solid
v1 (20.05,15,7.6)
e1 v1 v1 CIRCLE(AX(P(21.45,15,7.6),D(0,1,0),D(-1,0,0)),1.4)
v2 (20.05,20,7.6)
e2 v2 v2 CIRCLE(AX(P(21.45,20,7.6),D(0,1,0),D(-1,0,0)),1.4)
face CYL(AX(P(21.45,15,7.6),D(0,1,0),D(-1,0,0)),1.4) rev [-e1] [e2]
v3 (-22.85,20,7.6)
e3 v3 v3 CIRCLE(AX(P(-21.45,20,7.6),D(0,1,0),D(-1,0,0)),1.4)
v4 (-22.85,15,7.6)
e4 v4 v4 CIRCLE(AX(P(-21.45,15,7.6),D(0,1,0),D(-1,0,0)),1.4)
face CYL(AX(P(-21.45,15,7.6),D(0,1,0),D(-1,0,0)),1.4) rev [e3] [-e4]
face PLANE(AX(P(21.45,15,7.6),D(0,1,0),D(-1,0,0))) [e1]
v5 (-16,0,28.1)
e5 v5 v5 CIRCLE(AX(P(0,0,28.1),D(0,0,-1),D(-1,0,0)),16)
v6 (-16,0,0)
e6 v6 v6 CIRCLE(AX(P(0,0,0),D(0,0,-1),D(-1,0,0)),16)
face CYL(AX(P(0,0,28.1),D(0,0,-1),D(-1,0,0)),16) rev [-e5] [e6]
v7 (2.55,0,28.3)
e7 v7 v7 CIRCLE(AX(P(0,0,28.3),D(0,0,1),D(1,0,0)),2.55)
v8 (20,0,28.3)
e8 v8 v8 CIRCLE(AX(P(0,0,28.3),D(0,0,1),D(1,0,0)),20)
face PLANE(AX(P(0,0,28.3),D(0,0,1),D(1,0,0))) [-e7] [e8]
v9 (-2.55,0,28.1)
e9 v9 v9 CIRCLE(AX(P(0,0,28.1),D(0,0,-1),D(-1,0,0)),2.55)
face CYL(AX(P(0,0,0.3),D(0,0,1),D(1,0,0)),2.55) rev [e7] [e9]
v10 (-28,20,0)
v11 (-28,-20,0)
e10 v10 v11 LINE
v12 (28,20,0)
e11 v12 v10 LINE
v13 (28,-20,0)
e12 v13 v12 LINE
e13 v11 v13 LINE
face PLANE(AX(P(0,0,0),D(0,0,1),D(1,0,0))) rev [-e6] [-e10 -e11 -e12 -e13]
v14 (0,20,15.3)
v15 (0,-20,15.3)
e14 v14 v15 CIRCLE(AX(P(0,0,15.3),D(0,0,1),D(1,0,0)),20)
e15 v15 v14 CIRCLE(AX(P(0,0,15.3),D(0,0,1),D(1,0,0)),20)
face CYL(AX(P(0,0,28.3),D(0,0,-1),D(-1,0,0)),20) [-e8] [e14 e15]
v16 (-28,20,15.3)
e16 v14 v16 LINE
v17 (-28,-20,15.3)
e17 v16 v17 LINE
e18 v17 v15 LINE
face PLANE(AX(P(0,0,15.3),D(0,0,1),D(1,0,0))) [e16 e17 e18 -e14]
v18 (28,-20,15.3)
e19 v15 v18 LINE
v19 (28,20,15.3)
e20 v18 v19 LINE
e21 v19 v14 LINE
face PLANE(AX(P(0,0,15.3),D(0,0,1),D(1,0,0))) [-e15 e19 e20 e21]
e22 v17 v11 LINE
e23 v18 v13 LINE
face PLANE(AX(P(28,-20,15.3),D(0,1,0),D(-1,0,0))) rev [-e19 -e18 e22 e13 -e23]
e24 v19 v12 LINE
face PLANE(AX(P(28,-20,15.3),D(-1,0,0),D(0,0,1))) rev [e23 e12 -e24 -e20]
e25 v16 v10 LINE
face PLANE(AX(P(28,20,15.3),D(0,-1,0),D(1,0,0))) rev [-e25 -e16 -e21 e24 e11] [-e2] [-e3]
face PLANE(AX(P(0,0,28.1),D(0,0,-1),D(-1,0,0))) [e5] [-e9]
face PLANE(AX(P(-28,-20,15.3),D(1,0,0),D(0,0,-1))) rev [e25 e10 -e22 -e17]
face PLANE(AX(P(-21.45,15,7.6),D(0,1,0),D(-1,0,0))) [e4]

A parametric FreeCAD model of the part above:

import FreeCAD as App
import Part
import Sketcher
from FreeCAD import Vector

doc = App.newDocument("Part")
body = doc.addObject("PartDesign::Body", "Body")

sketch1 = body.newObject("Sketcher::SketchObject", "Sketch")
sketch1.AttachmentSupport = (doc.getObject("XY_Plane"), [""])
sketch1.MapMode = "FlatFace"
sketch1.addGeometry([
    Part.LineSegment(Vector(-28, 20, 0), Vector(-28, -20, 0)),
    Part.LineSegment(Vector(-28, -20, 0), Vector(28, -20, 0)),
    Part.LineSegment(Vector(28, -20, 0), Vector(28, 20, 0)),
    Part.LineSegment(Vector(28, 20, 0), Vector(-28, 20, 0)),
], False)
sketch1.addConstraint([
    Sketcher.Constraint("Coincident", 0, 2, 1, 1),
    Sketcher.Constraint("Coincident", 1, 2, 2, 1),
    Sketcher.Constraint("Coincident", 2, 2, 3, 1),
    Sketcher.Constraint("Coincident", 3, 2, 0, 1),
    Sketcher.Constraint("Vertical", 0),
    Sketcher.Constraint("Horizontal", 1),
    Sketcher.Constraint("Vertical", 2),
    Sketcher.Constraint("Horizontal", 3),
    Sketcher.Constraint("Symmetric", 0, 2, 2, 2, -1, 1),
    Sketcher.Constraint("DistanceX", 1, 1, 1, 2, 56.0),
    Sketcher.Constraint("DistanceY", 0, 2, 0, 1, 40.0),
])
pad1 = body.newObject("PartDesign::Pad", "Pad")
pad1.Profile = sketch1
pad1.Length = 15.3

sketch2 = body.newObject("Sketcher::SketchObject", "Sketch001")
sketch2.AttachmentSupport = (doc.getObject("XY_Plane"), [""])
sketch2.MapMode = "FlatFace"
sketch2.AttachmentOffset = App.Placement(Vector(0, 0, 15.3), App.Rotation())
sketch2.addGeometry(Part.Circle(Vector(0, 0, 0), Vector(0, 0, 1), 20), False)
sketch2.addConstraint([
    Sketcher.Constraint("Coincident", 0, 3, -1, 1),
    Sketcher.Constraint("Diameter", 0, 40.0),
])
pad2 = body.newObject("PartDesign::Pad", "Pad001")
pad2.Profile = sketch2
pad2.Length = 13

sketch3 = body.newObject("Sketcher::SketchObject", "Sketch002")
sketch3.AttachmentSupport = (doc.getObject("XZ_Plane"), [""])
sketch3.MapMode = "FlatFace"
sketch3.AttachmentOffset = App.Placement(Vector(0, 0, -20), App.Rotation())
sketch3.addGeometry([
    Part.Circle(Vector(-21.4, 7.6, 0), Vector(0, 0, 1), 1.4),
    Part.Circle(Vector(21.4, 7.6, 0), Vector(0, 0, 1), 1.4),
], False)
sketch3.addConstraint([
    Sketcher.Constraint("Equal", 0, 1),
    Sketcher.Constraint("Symmetric", 0, 3, 1, 3, -2),
    Sketcher.Constraint("Diameter", 0, 2.8),
    Sketcher.Constraint("DistanceY", -1, 1, 0, 3, 7.6),
    Sketcher.Constraint("DistanceX", 0, 3, 1, 3, 42.9),
])
pocket1 = body.newObject("PartDesign::Pocket", "Pocket")
pocket1.Profile = sketch3
pocket1.Length = 5
pocket1.Reversed = True

sketch4 = body.newObject("Sketcher::SketchObject", "Sketch003")
sketch4.AttachmentSupport = (doc.getObject("XY_Plane"), [""])
sketch4.MapMode = "FlatFace"
sketch4.addGeometry(Part.Circle(Vector(0, 0, 0), Vector(0, 0, 1), 16), False)
sketch4.addConstraint([
    Sketcher.Constraint("Coincident", 0, 3, -1, 1),
    Sketcher.Constraint("Diameter", 0, 32.0),
])
pocket2 = body.newObject("PartDesign::Pocket", "Pocket001")
pocket2.Profile = sketch4
pocket2.Length = 28.1
pocket2.Reversed = True

sketch5 = body.newObject("Sketcher::SketchObject", "Sketch004")
sketch5.AttachmentSupport = (doc.getObject("XY_Plane"), [""])
sketch5.MapMode = "FlatFace"
sketch5.AttachmentOffset = App.Placement(Vector(0, 0, 28.3), App.Rotation())
sketch5.addGeometry(Part.Circle(Vector(0, 0, 0), Vector(0, 0, 1), 2.5), False)
sketch5.addConstraint([
    Sketcher.Constraint("Coincident", 0, 3, -1, 1),
    Sketcher.Constraint("Diameter", 0, 5.1),
])
pocket3 = body.newObject("PartDesign::Pocket", "Pocket002")
pocket3.Profile = sketch5
pocket3.Length = 28

doc.recompute()
